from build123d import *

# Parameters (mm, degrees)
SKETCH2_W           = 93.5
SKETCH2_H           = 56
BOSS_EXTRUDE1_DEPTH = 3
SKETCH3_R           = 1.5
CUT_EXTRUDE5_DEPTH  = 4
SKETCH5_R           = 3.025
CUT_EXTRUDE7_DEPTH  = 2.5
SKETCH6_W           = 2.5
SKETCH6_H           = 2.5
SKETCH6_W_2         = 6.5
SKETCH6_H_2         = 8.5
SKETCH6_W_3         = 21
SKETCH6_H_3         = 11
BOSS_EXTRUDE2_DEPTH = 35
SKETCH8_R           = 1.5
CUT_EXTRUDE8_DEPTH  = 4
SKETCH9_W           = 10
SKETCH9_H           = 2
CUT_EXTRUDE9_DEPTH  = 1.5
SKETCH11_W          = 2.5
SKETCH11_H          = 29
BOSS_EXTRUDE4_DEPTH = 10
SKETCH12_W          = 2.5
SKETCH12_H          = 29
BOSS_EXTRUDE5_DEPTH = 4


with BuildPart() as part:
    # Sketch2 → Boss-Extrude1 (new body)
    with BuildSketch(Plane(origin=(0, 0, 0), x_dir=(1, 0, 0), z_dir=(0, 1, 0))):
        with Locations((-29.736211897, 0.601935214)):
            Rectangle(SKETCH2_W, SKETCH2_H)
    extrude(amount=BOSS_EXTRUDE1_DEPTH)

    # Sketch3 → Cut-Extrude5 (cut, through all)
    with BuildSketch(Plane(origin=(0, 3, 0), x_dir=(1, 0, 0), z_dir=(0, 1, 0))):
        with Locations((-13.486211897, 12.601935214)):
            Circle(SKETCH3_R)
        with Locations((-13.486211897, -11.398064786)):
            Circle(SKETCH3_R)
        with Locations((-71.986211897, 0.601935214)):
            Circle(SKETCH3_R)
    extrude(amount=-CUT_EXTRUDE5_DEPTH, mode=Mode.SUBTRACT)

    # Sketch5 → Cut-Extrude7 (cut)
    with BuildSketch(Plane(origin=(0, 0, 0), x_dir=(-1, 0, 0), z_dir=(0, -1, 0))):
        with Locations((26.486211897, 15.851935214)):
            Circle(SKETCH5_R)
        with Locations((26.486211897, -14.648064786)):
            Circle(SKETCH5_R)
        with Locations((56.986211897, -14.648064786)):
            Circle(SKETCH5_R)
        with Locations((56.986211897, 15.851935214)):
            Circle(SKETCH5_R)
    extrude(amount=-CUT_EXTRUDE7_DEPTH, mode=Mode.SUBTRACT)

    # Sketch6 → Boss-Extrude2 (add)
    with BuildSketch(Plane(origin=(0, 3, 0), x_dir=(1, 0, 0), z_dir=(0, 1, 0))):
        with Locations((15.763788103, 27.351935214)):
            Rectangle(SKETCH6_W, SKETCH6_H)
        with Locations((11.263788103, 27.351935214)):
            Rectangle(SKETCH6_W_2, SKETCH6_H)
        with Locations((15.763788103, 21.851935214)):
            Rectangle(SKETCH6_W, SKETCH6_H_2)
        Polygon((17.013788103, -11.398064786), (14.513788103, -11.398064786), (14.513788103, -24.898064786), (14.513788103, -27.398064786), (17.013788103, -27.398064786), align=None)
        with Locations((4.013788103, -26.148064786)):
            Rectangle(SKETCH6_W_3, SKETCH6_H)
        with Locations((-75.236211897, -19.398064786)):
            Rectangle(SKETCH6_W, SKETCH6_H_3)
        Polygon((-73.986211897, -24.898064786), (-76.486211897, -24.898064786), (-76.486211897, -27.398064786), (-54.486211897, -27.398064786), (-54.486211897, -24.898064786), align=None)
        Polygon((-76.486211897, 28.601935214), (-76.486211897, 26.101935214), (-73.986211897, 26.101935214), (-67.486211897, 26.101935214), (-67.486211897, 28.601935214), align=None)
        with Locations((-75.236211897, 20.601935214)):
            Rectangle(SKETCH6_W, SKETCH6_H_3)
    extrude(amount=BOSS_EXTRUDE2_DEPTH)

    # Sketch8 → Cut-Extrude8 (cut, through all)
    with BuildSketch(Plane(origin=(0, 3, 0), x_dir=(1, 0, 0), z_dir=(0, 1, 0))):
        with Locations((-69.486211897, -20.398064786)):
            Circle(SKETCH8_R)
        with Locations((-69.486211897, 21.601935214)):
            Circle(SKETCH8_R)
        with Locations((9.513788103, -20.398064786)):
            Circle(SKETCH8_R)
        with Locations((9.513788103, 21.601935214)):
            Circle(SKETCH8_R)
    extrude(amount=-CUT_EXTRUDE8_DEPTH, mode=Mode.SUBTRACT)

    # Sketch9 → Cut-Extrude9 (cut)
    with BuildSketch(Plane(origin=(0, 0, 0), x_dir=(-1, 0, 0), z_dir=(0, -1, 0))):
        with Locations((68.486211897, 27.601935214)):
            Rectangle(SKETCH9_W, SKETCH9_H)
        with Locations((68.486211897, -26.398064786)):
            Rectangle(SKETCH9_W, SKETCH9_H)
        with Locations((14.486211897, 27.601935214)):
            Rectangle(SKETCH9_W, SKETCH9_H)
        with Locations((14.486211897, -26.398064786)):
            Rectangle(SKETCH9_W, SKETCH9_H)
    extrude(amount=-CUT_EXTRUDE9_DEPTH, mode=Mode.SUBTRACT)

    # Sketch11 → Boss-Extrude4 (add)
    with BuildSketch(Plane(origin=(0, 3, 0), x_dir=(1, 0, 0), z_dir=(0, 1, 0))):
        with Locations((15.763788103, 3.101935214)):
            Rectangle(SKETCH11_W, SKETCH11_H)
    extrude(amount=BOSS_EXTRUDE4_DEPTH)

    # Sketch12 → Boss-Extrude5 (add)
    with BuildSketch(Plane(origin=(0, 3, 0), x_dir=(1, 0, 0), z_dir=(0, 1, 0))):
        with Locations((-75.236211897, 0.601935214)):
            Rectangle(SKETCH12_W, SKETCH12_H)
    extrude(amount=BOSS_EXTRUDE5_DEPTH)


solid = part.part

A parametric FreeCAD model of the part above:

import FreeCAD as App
import Part
import Sketcher
Q = App.Units.Quantity


def add_polygon(sketch, points):
    """Adds a closed chain of lines whose ends are joined by coincident constraints."""
    first, n = sketch.GeometryCount, len(points)
    for a, b in zip(points, points[1:] + points[:1]):
        sketch.addGeometry(Part.LineSegment(App.Vector(*a, 0), App.Vector(*b, 0)), False)
    for i in range(n):
        sketch.addConstraint(Sketcher.Constraint("Coincident", first + i, 2, first + (i + 1) % n, 1))

doc = App.newDocument("Part")
body = doc.addObject("PartDesign::Body", "Body")

sketch1 = body.newObject("Sketcher::SketchObject", "Sketch")
sketch1.AttachmentSupport = (doc.getObject("XZ_Plane"), [""])
sketch1.MapMode = "FlatFace"
add_polygon(sketch1, [(-76, -29), (-76, 27), (17, 27), (17, -29)])
sketch1.addConstraint(Sketcher.Constraint("Vertical", 0))
sketch1.addConstraint(Sketcher.Constraint("Horizontal", 1))
sketch1.addConstraint(Sketcher.Constraint("Vertical", 2))
sketch1.addConstraint(Sketcher.Constraint("Horizontal", 3))
sketch1.addConstraint(Sketcher.Constraint("DistanceY", 0, 1, 0, 2, Q("56 mm")))
sketch1.addConstraint(Sketcher.Constraint("DistanceX", 1, 1, 1, 2, Q("93.5 mm")))
sketch1.addConstraint(Sketcher.Constraint("DistanceX", 0, 2, -1, 1, Q("76.486212 mm")))
sketch1.addConstraint(Sketcher.Constraint("DistanceY", -1, 1, 0, 2, Q("27.398065 mm")))
pad1 = body.newObject("PartDesign::Pad", "Pad")
pad1.Profile = sketch1
pad1.Length = 3
pad1.Reversed = True

sketch2 = body.newObject("Sketcher::SketchObject", "Sketch001")
sketch2.AttachmentSupport = (doc.getObject("XZ_Plane"), [""])
sketch2.MapMode = "FlatFace"
sketch2.AttachmentOffset = App.Placement(App.Vector(0, 0, -3), App.Rotation())
sketch2.addGeometry(Part.Circle(App.Vector(-13.5, -12.6, 0), App.Vector(0, 0, 1), 1.5), False)
sketch2.addGeometry(Part.Circle(App.Vector(-13.5, 11.4, 0), App.Vector(0, 0, 1), 1.5), False)
sketch2.addGeometry(Part.Circle(App.Vector(-72, -0.6, 0), App.Vector(0, 0, 1), 1.5), False)
sketch2.addConstraint(Sketcher.Constraint("Equal", 0, 1))
sketch2.addConstraint(Sketcher.Constraint("Equal", 1, 2))
sketch2.addConstraint(Sketcher.Constraint("Vertical", 0, 3, 1, 3))
sketch2.addConstraint(Sketcher.Constraint("Diameter", 0, Q("3 mm")))
sketch2.addConstraint(Sketcher.Constraint("DistanceY", 0, 3, 1, 3, Q("24 mm")))
sketch2.addConstraint(Sketcher.Constraint("DistanceY", 0, 3, 2, 3, Q("12 mm")))
sketch2.addConstraint(Sketcher.Constraint("DistanceX", 2, 3, 0, 3, Q("58.5 mm")))
sketch2.addConstraint(Sketcher.Constraint("DistanceX", 0, 3, -1, 1, Q("13.486212 mm")))
sketch2.addConstraint(Sketcher.Constraint("DistanceY", 0, 3, -1, 1, Q("12.601935 mm")))
pocket1 = body.newObject("PartDesign::Pocket", "Pocket")
pocket1.Profile = sketch2
pocket1.Type = "ThroughAll"
pocket1.Reversed = True

sketch3 = body.newObject("Sketcher::SketchObject", "Sketch002")
sketch3.AttachmentSupport = (doc.getObject("XZ_Plane"), [""])
sketch3.MapMode = "FlatFace"
sketch3.addGeometry(Part.Circle(App.Vector(-26.5, -15.9, 0), App.Vector(0, 0, 1), 3), False)
sketch3.addGeometry(Part.Circle(App.Vector(-26.5, 14.6, 0), App.Vector(0, 0, 1), 3), False)
sketch3.addGeometry(Part.Circle(App.Vector(-57, 14.6, 0), App.Vector(0, 0, 1), 3), False)
sketch3.addGeometry(Part.Circle(App.Vector(-57, -15.9, 0), App.Vector(0, 0, 1), 3), False)
sketch3.addConstraint(Sketcher.Constraint("Equal", 0, 1))
sketch3.addConstraint(Sketcher.Constraint("Equal", 1, 2))
sketch3.addConstraint(Sketcher.Constraint("Equal", 2, 3))
sketch3.addConstraint(Sketcher.Constraint("Horizontal", 1, 3, 2, 3))
sketch3.addConstraint(Sketcher.Constraint("Horizontal", 0, 3, 3, 3))
sketch3.addConstraint(Sketcher.Constraint("Vertical", 0, 3, 1, 3))
sketch3.addConstraint(Sketcher.Constraint("Vertical", 2, 3, 3, 3))
sketch3.addConstraint(Sketcher.Constraint("Diameter", 0, Q("6.05 mm")))
sketch3.addConstraint(Sketcher.Constraint("DistanceY", 0, 3, 1, 3, Q("30.5 mm")))
sketch3.addConstraint(Sketcher.Constraint("DistanceX", 2, 3, 1, 3, Q("30.5 mm")))
sketch3.addConstraint(Sketcher.Constraint("DistanceX", 0, 3, -1, 1, Q("26.486212 mm")))
sketch3.addConstraint(Sketcher.Constraint("DistanceY", 0, 3, -1, 1, Q("15.851935 mm")))
pocket2 = body.newObject("PartDesign::Pocket", "Pocket001")
pocket2.Profile = sketch3
pocket2.Length = 2.5

sketch4 = body.newObject("Sketcher::SketchObject", "Sketch003")
sketch4.AttachmentSupport = (doc.getObject("XZ_Plane"), [""])
sketch4.MapMode = "FlatFace"
sketch4.AttachmentOffset = App.Placement(App.Vector(0, 0, -3), App.Rotation())
add_polygon(sketch4, [(17, -28.6), (8, -28.6), (8, -26.1), (14.5, -26.1), (14.5, -17.6), (17, -17.6)])
add_polygon(sketch4, [(17, 11.4), (14.5, 11.4), (14.5, 24.9), (-6.5, 24.9), (-6.5, 27.4), (17, 27.4)])
add_polygon(sketch4, [(-76.5, 13.9), (-76.5, 27.4), (-54.5, 27.4), (-54.5, 24.9), (-74, 24.9), (-74, 13.9)])
add_polygon(sketch4, [(-76.5, -28.6), (-76.5, -15.1), (-74, -15.1), (-74, -26.1), (-67.5, -26.1), (-67.5, -28.6)])
sketch4.addConstraint(Sketcher.Constraint("Horizontal", 0))
sketch4.addConstraint(Sketcher.Constraint("Vertical", 1))
sketch4.addConstraint(Sketcher.Constraint("Horizontal", 2))
sketch4.addConstraint(Sketcher.Constraint("Vertical", 3))
sketch4.addConstraint(Sketcher.Constraint("Horizontal", 4))
sketch4.addConstraint(Sketcher.Constraint("Vertical", 5))
sketch4.addConstraint(Sketcher.Constraint("Horizontal", 6))
sketch4.addConstraint(Sketcher.Constraint("Vertical", 7))
sketch4.addConstraint(Sketcher.Constraint("Horizontal", 8))
sketch4.addConstraint(Sketcher.Constraint("Vertical", 9))
sketch4.addConstraint(Sketcher.Constraint("Horizontal", 10))
sketch4.addConstraint(Sketcher.Constraint("Vertical", 11))
sketch4.addConstraint(Sketcher.Constraint("Vertical", 12))
sketch4.addConstraint(Sketcher.Constraint("Horizontal", 13))
sketch4.addConstraint(Sketcher.Constraint("Vertical", 14))
sketch4.addConstraint(Sketcher.Constraint("Horizontal", 15))
sketch4.addConstraint(Sketcher.Constraint("Vertical", 16))
sketch4.addConstraint(Sketcher.Constraint("Horizontal", 17))
sketch4.addConstraint(Sketcher.Constraint("Vertical", 18))
sketch4.addConstraint(Sketcher.Constraint("Horizontal", 19))
sketch4.addConstraint(Sketcher.Constraint("Vertical", 20))
sketch4.addConstraint(Sketcher.Constraint("Horizontal", 21))
sketch4.addConstraint(Sketcher.Constraint("Vertical", 22))
sketch4.addConstraint(Sketcher.Constraint("Horizontal", 23))
sketch4.addConstraint(Sketcher.Constraint("Horizontal", 10, 2, 12, 2))
sketch4.addConstraint(Sketcher.Constraint("Horizontal", 8, 2, 14, 2))
sketch4.addConstraint(Sketcher.Constraint("Horizontal", 2, 2, 20, 2))
sketch4.addConstraint(Sketcher.Constraint("Horizontal", 5, 2, 22, 2))
sketch4.addConstraint(Sketcher.Constraint("Vertical", 3, 2, 6, 2))
sketch4.addConstraint(Sketcher.Constraint("Vertical", 5, 2, 10, 2))
sketch4.addConstraint(Sketcher.Constraint("Vertical", 17, 2, 18, 2))
sketch4.addConstraint(Sketcher.Constraint("Vertical", 16, 2, 19, 2))
sketch4.addConstraint(Sketcher.Constraint("Equal", 6, 17))
sketch4.addConstraint(Sketcher.Constraint("Equal", 2, 21))
sketch4.addConstraint(Sketcher.Constraint("Equal", 19, 1))
sketch4.addConstraint(Sketcher.Constraint("Equal", 1, 9))
sketch4.addConstraint(Sketcher.Constraint("Equal", 7, 12))
sketch4.addConstraint(Sketcher.Constraint("Equal", 5, 16))
sketch4.addConstraint(Sketcher.Constraint("Equal", 12, 18))
sketch4.addConstraint(Sketcher.Constraint("DistanceX", 0, 2, 0, 1, Q("9 mm")))
sketch4.addConstraint(Sketcher.Constraint("DistanceX", 8, 2, 8, 1, Q("21 mm")))
sketch4.addConstraint(Sketcher.Constraint("DistanceX", 13, 1, 13, 2, Q("22 mm")))
sketch4.addConstraint(Sketcher.Constraint("DistanceY", 5, 2, 5, 1, Q("11 mm")))
sketch4.addConstraint(Sketcher.Constraint("DistanceY", 11, 2, 11, 1, Q("16 mm")))
sketch4.addConstraint(Sketcher.Constraint("DistanceY", 3, 2, 6, 2, Q("29 mm")))
sketch4.addConstraint(Sketcher.Constraint("DistanceX", 12, 2, 9, 2, Q("70 mm")))
sketch4.addConstraint(Sketcher.Constraint("DistanceX", -1, 1, 0, 2, Q("8.013788 mm")))
sketch4.addConstraint(Sketcher.Constraint("DistanceY", 0, 2, -1, 1, Q("28.601935 mm")))
pad2 = body.newObject("PartDesign::Pad", "Pad001")
pad2.Profile = sketch4
pad2.Length = 35
pad2.Reversed = True

sketch5 = body.newObject("Sketcher::SketchObject", "Sketch004")
sketch5.AttachmentSupport = (doc.getObject("XZ_Plane"), [""])
sketch5.MapMode = "FlatFace"
sketch5.AttachmentOffset = App.Placement(App.Vector(0, 0, -3), App.Rotation())
sketch5.addGeometry(Part.Circle(App.Vector(-69.5, 20.4, 0), App.Vector(0, 0, 1), 1.5), False)
sketch5.addGeometry(Part.Circle(App.Vector(-69.5, -21.6, 0), App.Vector(0, 0, 1), 1.5), False)
sketch5.addGeometry(Part.Circle(App.Vector(9.5, 20.4, 0), App.Vector(0, 0, 1), 1.5), False)
sketch5.addGeometry(Part.Circle(App.Vector(9.5, -21.6, 0), App.Vector(0, 0, 1), 1.5), False)
sketch5.addConstraint(Sketcher.Constraint("Equal", 0, 1))
sketch5.addConstraint(Sketcher.Constraint("Equal", 1, 2))
sketch5.addConstraint(Sketcher.Constraint("Equal", 2, 3))
sketch5.addConstraint(Sketcher.Constraint("Horizontal", 0, 3, 2, 3))
sketch5.addConstraint(Sketcher.Constraint("Horizontal", 1, 3, 3, 3))
sketch5.addConstraint(Sketcher.Constraint("Vertical", 0, 3, 1, 3))
sketch5.addConstraint(Sketcher.Constraint("Vertical", 2, 3, 3, 3))
sketch5.addConstraint(Sketcher.Constraint("Diameter", 0, Q("3 mm")))
sketch5.addConstraint(Sketcher.Constraint("DistanceY", 1, 3, 0, 3, Q("42 mm")))
sketch5.addConstraint(Sketcher.Constraint("DistanceX", 0, 3, 2, 3, Q("79 mm")))
sketch5.addConstraint(Sketcher.Constraint("DistanceX", 0, 3, -1, 1, Q("69.486212 mm")))
sketch5.addConstraint(Sketcher.Constraint("DistanceY", -1, 1, 0, 3, Q("20.398065 mm")))
pocket3 = body.newObject("PartDesign::Pocket", "Pocket002")
pocket3.Profile = sketch5
pocket3.Type = "ThroughAll"
pocket3.Reversed = True

sketch6 = body.newObject("Sketcher::SketchObject", "Sketch005")
sketch6.AttachmentSupport = (doc.getObject("XZ_Plane"), [""])
sketch6.MapMode = "FlatFace"
add_polygon(sketch6, [(-63.5, -28.6), (-63.5, -26.6), (-73.5, -26.6), (-73.5, -28.6)])
add_polygon(sketch6, [(-63.5, 25.4), (-63.5, 27.4), (-73.5, 27.4), (-73.5, 25.4)])
add_polygon(sketch6, [(-9.5, -28.6), (-9.5, -26.6), (-19.5, -26.6), (-19.5, -28.6)])
add_polygon(sketch6, [(-9.5, 25.4), (-9.5, 27.4), (-19.5, 27.4), (-19.5, 25.4)])
sketch6.addConstraint(Sketcher.Constraint("Vertical", 0))
sketch6.addConstraint(Sketcher.Constraint("Horizontal", 1))
sketch6.addConstraint(Sketcher.Constraint("Vertical", 2))
sketch6.addConstraint(Sketcher.Constraint("Horizontal", 3))
sketch6.addConstraint(Sketcher.Constraint("Vertical", 4))
sketch6.addConstraint(Sketcher.Constraint("Horizontal", 5))
sketch6.addConstraint(Sketcher.Constraint("Vertical", 6))
sketch6.addConstraint(Sketcher.Constraint("Horizontal", 7))
sketch6.addConstraint(Sketcher.Constraint("Vertical", 8))
sketch6.addConstraint(Sketcher.Constraint("Horizontal", 9))
sketch6.addConstraint(Sketcher.Constraint("Vertical", 10))
sketch6.addConstraint(Sketcher.Constraint("Horizontal", 11))
sketch6.addConstraint(Sketcher.Constraint("Vertical", 12))
sketch6.addConstraint(Sketcher.Constraint("Horizontal", 13))
sketch6.addConstraint(Sketcher.Constraint("Vertical", 14))
sketch6.addConstraint(Sketcher.Constraint("Horizontal", 15))
sketch6.addConstraint(Sketcher.Constraint("Horizontal", 1, 2, 8, 2))
sketch6.addConstraint(Sketcher.Constraint("Horizontal", 3, 2, 10, 2))
sketch6.addConstraint(Sketcher.Constraint("Horizontal", 5, 2, 12, 2))
sketch6.addConstraint(Sketcher.Constraint("Horizontal", 7, 2, 14, 2))
sketch6.addConstraint(Sketcher.Constraint("Vertical", 3, 2, 4, 2))
sketch6.addConstraint(Sketcher.Constraint("Vertical", 2, 2, 5, 2))
sketch6.addConstraint(Sketcher.Constraint("Vertical", 11, 2, 12, 2))
sketch6.addConstraint(Sketcher.Constraint("Vertical", 10, 2, 13, 2))
sketch6.addConstraint(Sketcher.Constraint("Equal", 7, 9))
sketch6.addConstraint(Sketcher.Constraint("Equal", 2, 4))
sketch6.addConstraint(Sketcher.Constraint("DistanceX", 1, 2, 1, 1, Q("10 mm")))
sketch6.addConstraint(Sketcher.Constraint("DistanceY", 0, 1, 0, 2, Q("2 mm")))
sketch6.addConstraint(Sketcher.Constraint("DistanceY", 0, 2, 4, 2, Q("54 mm")))
sketch6.addConstraint(Sketcher.Constraint("DistanceX", 0, 2, 8, 2, Q("54 mm")))
sketch6.addConstraint(Sketcher.Constraint("DistanceX", 0, 2, -1, 1, Q("63.486212 mm")))
sketch6.addConstraint(Sketcher.Constraint("DistanceY", 0, 2, -1, 1, Q("26.601935 mm")))
pocket4 = body.newObject("PartDesign::Pocket", "Pocket003")
pocket4.Profile = sketch6
pocket4.Length = 1.5

sketch7 = body.newObject("Sketcher::SketchObject", "Sketch006")
sketch7.AttachmentSupport = (doc.getObject("XZ_Plane"), [""])
sketch7.MapMode = "FlatFace"
sketch7.AttachmentOffset = App.Placement(App.Vector(0, 0, -3), App.Rotation())
add_polygon(sketch7, [(14.5, -17.6), (14.5, 11.4), (17, 11.4), (17, -17.6)])
sketch7.addConstraint(Sketcher.Constraint("Vertical", 0))
sketch7.addConstraint(Sketcher.Constraint("Horizontal", 1))
sketch7.addConstraint(Sketcher.Constraint("Vertical", 2))
sketch7.addConstraint(Sketcher.Constraint("Horizontal", 3))
sketch7.addConstraint(Sketcher.Constraint("DistanceY", 0, 1, 0, 2, Q("29 mm")))
sketch7.addConstraint(Sketcher.Constraint("DistanceX", 1, 1, 1, 2, Q("2.5 mm")))
sketch7.addConstraint(Sketcher.Constraint("DistanceX", -1, 1, 0, 2, Q("14.513788 mm")))
sketch7.addConstraint(Sketcher.Constraint("DistanceY", -1, 1, 0, 2, Q("11.398065 mm")))
pad3 = body.newObject("PartDesign::Pad", "Pad002")
pad3.Profile = sketch7
pad3.Length = 10
pad3.Reversed = True

sketch8 = body.newObject("Sketcher::SketchObject", "Sketch007")
sketch8.AttachmentSupport = (doc.getObject("XZ_Plane"), [""])
sketch8.MapMode = "FlatFace"
sketch8.AttachmentOffset = App.Placement(App.Vector(0, 0, -3), App.Rotation())
add_polygon(sketch8, [(-76.5, -15.1), (-76.5, 13.9), (-74, 13.9), (-74, -15.1)])
sketch8.addConstraint(Sketcher.Constraint("Vertical", 0))
sketch8.addConstraint(Sketcher.Constraint("Horizontal", 1))
sketch8.addConstraint(Sketcher.Constraint("Vertical", 2))
sketch8.addConstraint(Sketcher.Constraint("Horizontal", 3))
sketch8.addConstraint(Sketcher.Constraint("DistanceY", 0, 1, 0, 2, Q("29 mm")))
sketch8.addConstraint(Sketcher.Constraint("DistanceX", 1, 1, 1, 2, Q("2.5 mm")))
sketch8.addConstraint(Sketcher.Constraint("DistanceX", 0, 2, -1, 1, Q("76.486212 mm")))
sketch8.addConstraint(Sketcher.Constraint("DistanceY", -1, 1, 0, 2, Q("13.898065 mm")))
pad4 = body.newObject("PartDesign::Pad", "Pad003")
pad4.Profile = sketch8
pad4.Length = 4
pad4.Reversed = True

doc.recompute()
